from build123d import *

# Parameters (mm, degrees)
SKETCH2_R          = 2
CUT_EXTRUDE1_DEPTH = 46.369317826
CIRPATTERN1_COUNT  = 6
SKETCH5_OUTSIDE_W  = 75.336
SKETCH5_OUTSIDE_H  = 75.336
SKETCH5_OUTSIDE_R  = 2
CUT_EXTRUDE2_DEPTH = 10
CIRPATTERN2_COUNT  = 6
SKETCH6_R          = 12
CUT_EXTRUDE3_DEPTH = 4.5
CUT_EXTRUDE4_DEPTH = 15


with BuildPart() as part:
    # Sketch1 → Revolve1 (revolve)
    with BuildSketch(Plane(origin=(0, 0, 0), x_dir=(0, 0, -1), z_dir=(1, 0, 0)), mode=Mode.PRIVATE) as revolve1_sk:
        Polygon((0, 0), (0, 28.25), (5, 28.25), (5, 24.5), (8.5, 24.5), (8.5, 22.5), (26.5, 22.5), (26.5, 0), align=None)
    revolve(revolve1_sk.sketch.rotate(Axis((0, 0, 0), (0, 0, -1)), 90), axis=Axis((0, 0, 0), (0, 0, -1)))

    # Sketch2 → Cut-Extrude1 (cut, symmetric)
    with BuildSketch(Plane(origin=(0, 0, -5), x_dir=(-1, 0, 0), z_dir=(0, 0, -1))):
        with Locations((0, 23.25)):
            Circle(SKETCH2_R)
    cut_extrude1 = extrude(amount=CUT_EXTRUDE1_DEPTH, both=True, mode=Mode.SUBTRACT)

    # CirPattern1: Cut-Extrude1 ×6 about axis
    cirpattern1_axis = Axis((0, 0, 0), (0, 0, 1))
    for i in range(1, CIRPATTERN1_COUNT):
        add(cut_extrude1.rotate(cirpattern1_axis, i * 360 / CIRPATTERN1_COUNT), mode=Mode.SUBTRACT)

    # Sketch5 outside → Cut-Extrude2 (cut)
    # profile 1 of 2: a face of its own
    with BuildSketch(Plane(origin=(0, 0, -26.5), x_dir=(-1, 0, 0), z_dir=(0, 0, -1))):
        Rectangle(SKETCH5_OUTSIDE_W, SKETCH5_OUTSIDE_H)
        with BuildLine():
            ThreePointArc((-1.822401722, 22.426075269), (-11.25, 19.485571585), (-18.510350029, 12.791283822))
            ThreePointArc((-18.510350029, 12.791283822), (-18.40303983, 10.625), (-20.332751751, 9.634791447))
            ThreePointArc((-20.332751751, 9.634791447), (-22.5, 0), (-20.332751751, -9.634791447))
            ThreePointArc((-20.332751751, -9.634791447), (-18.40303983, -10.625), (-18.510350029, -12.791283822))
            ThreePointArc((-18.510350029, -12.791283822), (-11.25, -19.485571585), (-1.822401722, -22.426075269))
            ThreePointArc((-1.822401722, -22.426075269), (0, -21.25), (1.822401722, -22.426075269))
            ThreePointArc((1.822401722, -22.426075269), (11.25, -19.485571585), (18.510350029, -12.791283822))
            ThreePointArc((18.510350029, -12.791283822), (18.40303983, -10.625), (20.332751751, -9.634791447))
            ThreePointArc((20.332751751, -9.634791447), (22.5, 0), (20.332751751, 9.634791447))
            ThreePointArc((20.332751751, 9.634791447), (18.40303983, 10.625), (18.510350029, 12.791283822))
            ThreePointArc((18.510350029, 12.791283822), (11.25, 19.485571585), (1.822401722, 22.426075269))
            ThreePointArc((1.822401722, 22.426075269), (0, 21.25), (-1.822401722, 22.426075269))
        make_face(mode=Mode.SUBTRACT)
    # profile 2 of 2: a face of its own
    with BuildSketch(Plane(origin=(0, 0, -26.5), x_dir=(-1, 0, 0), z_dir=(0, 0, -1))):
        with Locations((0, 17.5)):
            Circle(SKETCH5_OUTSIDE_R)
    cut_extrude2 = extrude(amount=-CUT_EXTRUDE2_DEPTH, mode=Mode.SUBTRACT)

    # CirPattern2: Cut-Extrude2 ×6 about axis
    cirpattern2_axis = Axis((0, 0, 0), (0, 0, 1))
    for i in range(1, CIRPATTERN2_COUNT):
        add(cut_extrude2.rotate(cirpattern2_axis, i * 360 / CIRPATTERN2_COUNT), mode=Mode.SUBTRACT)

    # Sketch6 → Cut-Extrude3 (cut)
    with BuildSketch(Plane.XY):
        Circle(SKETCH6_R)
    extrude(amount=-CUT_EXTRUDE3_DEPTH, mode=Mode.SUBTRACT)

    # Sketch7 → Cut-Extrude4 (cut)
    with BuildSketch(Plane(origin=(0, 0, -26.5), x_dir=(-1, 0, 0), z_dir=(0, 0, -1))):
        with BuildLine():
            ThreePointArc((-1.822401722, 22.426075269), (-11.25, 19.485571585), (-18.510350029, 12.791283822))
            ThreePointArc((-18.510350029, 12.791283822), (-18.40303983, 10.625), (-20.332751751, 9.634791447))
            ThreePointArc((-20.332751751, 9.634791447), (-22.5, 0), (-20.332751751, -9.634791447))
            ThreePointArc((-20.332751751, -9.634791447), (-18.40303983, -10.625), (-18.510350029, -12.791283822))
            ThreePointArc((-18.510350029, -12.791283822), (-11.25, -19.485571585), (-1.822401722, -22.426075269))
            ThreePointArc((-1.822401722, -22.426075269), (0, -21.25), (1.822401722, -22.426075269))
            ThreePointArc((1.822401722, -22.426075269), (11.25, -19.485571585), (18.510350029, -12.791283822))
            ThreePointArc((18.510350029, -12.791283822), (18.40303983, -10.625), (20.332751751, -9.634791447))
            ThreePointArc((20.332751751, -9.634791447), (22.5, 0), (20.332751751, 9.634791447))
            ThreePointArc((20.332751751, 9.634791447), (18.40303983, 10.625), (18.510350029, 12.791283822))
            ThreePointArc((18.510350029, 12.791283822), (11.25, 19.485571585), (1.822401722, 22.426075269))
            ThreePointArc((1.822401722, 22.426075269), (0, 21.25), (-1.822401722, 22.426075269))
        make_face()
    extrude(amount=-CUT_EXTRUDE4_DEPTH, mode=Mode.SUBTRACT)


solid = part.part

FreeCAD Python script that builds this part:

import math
import FreeCAD as App
import Part
import Sketcher

V = App.Vector
Q = App.Units.Quantity

doc = App.newDocument("Part")
body = doc.addObject("PartDesign::Body", "Body")

# Sketch on YZ plane
sketch1 = doc.addObject("Sketcher::SketchObject", "Sketch")
body.addObject(sketch1)
sketch1.AttachmentSupport = (doc.YZ_Plane, [""])
sketch1.MapMode = "FlatFace"
sketch1.addGeometry([
    Part.LineSegment(V(28.25, 0, 0), V(0, 0, 0)),  # 0
    Part.LineSegment(V(0, 0, 0), V(0, -26.5, 0)),  # 1
    Part.LineSegment(V(0, -26.5, 0), V(22.5, -26.5, 0)),  # 2
    Part.LineSegment(V(22.5, -26.5, 0), V(22.5, -8.5, 0)),  # 3
    Part.LineSegment(V(22.5, -8.5, 0), V(24.5, -8.5, 0)),  # 4
    Part.LineSegment(V(24.5, -8.5, 0), V(24.5, -5, 0)),  # 5
    Part.LineSegment(V(24.5, -5, 0), V(28.25, -5, 0)),  # 6
    Part.LineSegment(V(28.25, -5, 0), V(28.25, 0, 0)),  # 7
], False)
sketch1.addConstraint([
    Sketcher.Constraint("Coincident", 0, 2, 1, 1),
    Sketcher.Constraint("Coincident", 1, 2, 2, 1),
    Sketcher.Constraint("Coincident", 2, 2, 3, 1),
    Sketcher.Constraint("Coincident", 3, 2, 4, 1),
    Sketcher.Constraint("Coincident", 4, 2, 5, 1),
    Sketcher.Constraint("Coincident", 5, 2, 6, 1),
    Sketcher.Constraint("Coincident", 6, 2, 7, 1),
    Sketcher.Constraint("Coincident", 7, 2, 0, 1),
    Sketcher.Constraint("Horizontal", 0),
    Sketcher.Constraint("Vertical", 1),
    Sketcher.Constraint("Horizontal", 2),
    Sketcher.Constraint("Vertical", 3),
    Sketcher.Constraint("Horizontal", 4),
    Sketcher.Constraint("Vertical", 5),
    Sketcher.Constraint("Horizontal", 6),
    Sketcher.Constraint("Vertical", 7),
    Sketcher.Constraint("Coincident", 0, 2, -1, 1),
    Sketcher.Constraint("DistanceX", 4, 1, 4, 2, Q("2 mm")),
    Sketcher.Constraint("DistanceY", 3, 1, 3, 2, Q("18 mm")),
    Sketcher.Constraint("DistanceY", 7, 1, 7, 2, Q("5 mm")),
    Sketcher.Constraint("DistanceX", 2, 1, 2, 2, Q("22.5 mm")),
    Sketcher.Constraint("DistanceY", 1, 2, 1, 1, Q("26.5 mm")),
    Sketcher.Constraint("DistanceX", 0, 2, 0, 1, Q("28.25 mm")),
])
revolution = doc.addObject("PartDesign::Revolution", "Revolution")
body.addObject(revolution)
revolution.Profile = sketch1
revolution.ReferenceAxis = (sketch1, ["V_Axis"])
revolution.Angle = 360

# Sketch on XY plane
sketch2 = doc.addObject("Sketcher::SketchObject", "Sketch001")
body.addObject(sketch2)
sketch2.AttachmentSupport = (doc.XY_Plane, [""])
sketch2.MapMode = "FlatFace"
sketch2.AttachmentOffset = App.Placement(V(0, 0, -5), App.Rotation())
sketch2.addGeometry(Part.Circle(V(0, 23.25, 0), V(0, 0, 1), 2), False)
sketch2.addConstraint([
    Sketcher.Constraint("PointOnObject", 0, 3, -2),
    Sketcher.Constraint("Diameter", 0, Q("4 mm")),
    Sketcher.Constraint("DistanceY", -1, 1, 0, 3, Q("23.25 mm")),
])
pocket1 = doc.addObject("PartDesign::Pocket", "Pocket")
body.addObject(pocket1)
pocket1.Profile = sketch2
pocket1.Length = 92.738636
pocket1.Midplane = True
doc.recompute()

polarpattern = doc.addObject("PartDesign::PolarPattern", "PolarPattern")
body.addObject(polarpattern)
polarpattern.Originals = [pocket1]
polarpattern.Axis = (doc.Z_Axis, [""])
polarpattern.Angle = 360
polarpattern.Occurrences = 6
body.Tip = polarpattern

# Sketch on XY plane
sketch3 = doc.addObject("Sketcher::SketchObject", "Sketch002")
body.addObject(sketch3)
sketch3.AttachmentSupport = (doc.XY_Plane, [""])
sketch3.MapMode = "FlatFace"
sketch3.AttachmentOffset = App.Placement(V(0, 0, -26.5), App.Rotation())
sketch3.addGeometry([
    Part.LineSegment(V(37.668, 37.668, 0), V(37.668, -37.668, 0)),  # 0
    Part.LineSegment(V(37.668, -37.668, 0), V(-37.668, -37.668, 0)),  # 1
    Part.LineSegment(V(-37.668, -37.668, 0), V(-37.668, 37.668, 0)),  # 2
    Part.LineSegment(V(-37.668, 37.668, 0), V(37.668, 37.668, 0)),  # 3
    Part.ArcOfCircle(Part.Circle(V(0, 0, 0), V(0, 0, 1), 22.5), math.radians(34.645797), math.radians(85.354203)),  # 4
    Part.ArcOfCircle(Part.Circle(V(0, 23.25, 0), V(0, 0, 1), 2), math.radians(-155.671833), math.radians(-24.328167)),  # 5
    Part.ArcOfCircle(Part.Circle(V(0, 0, 0), V(0, 0, 1), 22.5), math.radians(94.645797), math.radians(145.354203)),  # 6
    Part.ArcOfCircle(Part.Circle(V(-20.135091, 11.625, 0), V(0, 0, 1), 2), math.radians(-95.671833), math.radians(35.671833)),  # 7
    Part.ArcOfCircle(Part.Circle(V(0, 0, 0), V(0, 0, 1), 22.5), math.radians(154.645797), math.radians(205.354203)),  # 8
    Part.ArcOfCircle(Part.Circle(V(-20.135091, -11.625, 0), V(0, 0, 1), 2), math.radians(-35.671833), math.radians(95.671833)),  # 9
    Part.ArcOfCircle(Part.Circle(V(0, 0, 0), V(0, 0, 1), 22.5), math.radians(-145.354203), math.radians(-94.645797)),  # 10
    Part.ArcOfCircle(Part.Circle(V(0, -23.25, 0), V(0, 0, 1), 2), math.radians(24.328167), math.radians(155.671833)),  # 11
    Part.ArcOfCircle(Part.Circle(V(0, 0, 0), V(0, 0, 1), 22.5), math.radians(-85.354203), math.radians(-34.645797)),  # 12
    Part.ArcOfCircle(Part.Circle(V(20.135091, -11.625, 0), V(0, 0, 1), 2), math.radians(84.328167), math.radians(215.671833)),  # 13
    Part.ArcOfCircle(Part.Circle(V(0, 0, 0), V(0, 0, 1), 22.5), math.radians(-25.354203), math.radians(25.354203)),  # 14
    Part.ArcOfCircle(Part.Circle(V(20.135091, 11.625, 0), V(0, 0, 1), 2), math.radians(144.328167), math.radians(275.671833)),  # 15
    Part.Circle(V(0, 17.5, 0), V(0, 0, 1), 2),  # 16
], False)
sketch3.addConstraint([
    Sketcher.Constraint("Coincident", 0, 2, 1, 1),
    Sketcher.Constraint("Coincident", 1, 2, 2, 1),
    Sketcher.Constraint("Coincident", 2, 2, 3, 1),
    Sketcher.Constraint("Coincident", 3, 2, 0, 1),
    Sketcher.Constraint("Coincident", 4, 2, 5, 2),
    Sketcher.Constraint("Coincident", 5, 1, 6, 1),
    Sketcher.Constraint("Coincident", 6, 2, 7, 2),
    Sketcher.Constraint("Coincident", 7, 1, 8, 1),
    Sketcher.Constraint("Coincident", 8, 2, 9, 2),
    Sketcher.Constraint("Coincident", 9, 1, 10, 1),
    Sketcher.Constraint("Coincident", 10, 2, 11, 2),
    Sketcher.Constraint("Coincident", 11, 1, 12, 1),
    Sketcher.Constraint("Coincident", 12, 2, 13, 2),
    Sketcher.Constraint("Coincident", 13, 1, 14, 1),
    Sketcher.Constraint("Coincident", 14, 2, 15, 2),
    Sketcher.Constraint("Coincident", 15, 1, 4, 1),
    Sketcher.Constraint("Vertical", 0),
    Sketcher.Constraint("Horizontal", 1),
    Sketcher.Constraint("Vertical", 2),
    Sketcher.Constraint("Horizontal", 3),
    Sketcher.Constraint("Coincident", 4, 3, -1, 1),
    Sketcher.Constraint("Coincident", 6, 3, -1, 1),
    Sketcher.Constraint("Coincident", 8, 3, -1, 1),
    Sketcher.Constraint("Coincident", 10, 3, -1, 1),
    Sketcher.Constraint("Coincident", 12, 3, -1, 1),
    Sketcher.Constraint("Coincident", 14, 3, -1, 1),
    Sketcher.Constraint("Equal", 4, 6),
    Sketcher.Constraint("Equal", 5, 7),
    Sketcher.Constraint("Equal", 6, 8),
    Sketcher.Constraint("Equal", 7, 9),
    Sketcher.Constraint("Equal", 8, 10),
    Sketcher.Constraint("Equal", 9, 11),
    Sketcher.Constraint("Equal", 10, 12),
    Sketcher.Constraint("Equal", 11, 13),
    Sketcher.Constraint("Equal", 12, 14),
    Sketcher.Constraint("Equal", 13, 15),
    Sketcher.Constraint("Equal", 15, 16),
    Sketcher.Constraint("Symmetric", 5, 3, 11, 3, -1, 1),
    Sketcher.Constraint("Symmetric", 7, 3, 13, 3, -1, 1),
    Sketcher.Constraint("Symmetric", 9, 3, 15, 3, -1, 1),
    Sketcher.Constraint("Symmetric", 0, 2, 2, 2, -1, 1),
    Sketcher.Constraint("Symmetric", 9, 3, 13, 3, -2),
    Sketcher.Constraint("PointOnObject", 5, 3, -2),
    Sketcher.Constraint("PointOnObject", 16, 3, -2),
    Sketcher.Constraint("Equal", 3, 0),
    Sketcher.Constraint("Diameter", 16, Q("4 mm")),
    Sketcher.Constraint("Radius", 4, Q("22.5 mm")),
    Sketcher.Constraint("DistanceY", -1, 1, 16, 3, Q("17.5 mm")),
    Sketcher.Constraint("DistanceX", 1, 2, 1, 1, Q("75.336 mm")),
    Sketcher.Constraint("DistanceY", -1, 1, 5, 3, Q("23.25 mm")),
    Sketcher.Constraint("DistanceY", 9, 3, 7, 3, Q("23.25 mm")),
    Sketcher.Constraint("DistanceX", 7, 1, 6, 2, Q("1.822402 mm")),
])
pocket2 = doc.addObject("PartDesign::Pocket", "Pocket001")
body.addObject(pocket2)
pocket2.Profile = sketch3
pocket2.Length = 10
pocket2.Reversed = True
doc.recompute()

polarpattern2 = doc.addObject("PartDesign::PolarPattern", "PolarPattern001")
body.addObject(polarpattern2)
polarpattern2.Originals = [pocket2]
polarpattern2.Axis = (doc.Z_Axis, [""])
polarpattern2.Angle = 360
polarpattern2.Occurrences = 6
body.Tip = polarpattern2

# Sketch on XY plane
sketch4 = doc.addObject("Sketcher::SketchObject", "Sketch003")
body.addObject(sketch4)
sketch4.AttachmentSupport = (doc.XY_Plane, [""])
sketch4.MapMode = "FlatFace"
sketch4.addGeometry(Part.Circle(V(0, 0, 0), V(0, 0, 1), 12), False)
sketch4.addConstraint([
    Sketcher.Constraint("Coincident", 0, 3, -1, 1),
    Sketcher.Constraint("Diameter", 0, Q("24 mm")),
])
pocket3 = doc.addObject("PartDesign::Pocket", "Pocket002")
body.addObject(pocket3)
pocket3.Profile = sketch4
pocket3.Length = 4.5

# Sketch on XY plane
sketch5 = doc.addObject("Sketcher::SketchObject", "Sketch004")
body.addObject(sketch5)
sketch5.AttachmentSupport = (doc.XY_Plane, [""])
sketch5.MapMode = "FlatFace"
sketch5.AttachmentOffset = App.Placement(V(0, 0, -26.5), App.Rotation())
sketch5.addGeometry([
    Part.ArcOfCircle(Part.Circle(V(0, 0, 0), V(0, 0, 1), 22.5), math.radians(34.645797), math.radians(85.354203)),  # 0
    Part.ArcOfCircle(Part.Circle(V(20.135091, 11.625, 0), V(0, 0, 1), 2), math.radians(144.328167), math.radians(275.671833)),  # 1
    Part.ArcOfCircle(Part.Circle(V(0, 0, 0), V(0, 0, 1), 22.5), math.radians(-25.354203), math.radians(25.354203)),  # 2
    Part.ArcOfCircle(Part.Circle(V(20.135091, -11.625, 0), V(0, 0, 1), 2), math.radians(84.328167), math.radians(215.671833)),  # 3
    Part.ArcOfCircle(Part.Circle(V(0, 0, 0), V(0, 0, 1), 22.5), math.radians(-85.354203), math.radians(-34.645797)),  # 4
    Part.ArcOfCircle(Part.Circle(V(0, -23.25, 0), V(0, 0, 1), 2), math.radians(24.328167), math.radians(155.671833)),  # 5
    Part.ArcOfCircle(Part.Circle(V(0, 0, 0), V(0, 0, 1), 22.5), math.radians(-145.354203), math.radians(-94.645797)),  # 6
    Part.ArcOfCircle(Part.Circle(V(-20.135091, -11.625, 0), V(0, 0, 1), 2), math.radians(-35.671833), math.radians(95.671833)),  # 7
    Part.ArcOfCircle(Part.Circle(V(0, 0, 0), V(0, 0, 1), 22.5), math.radians(154.645797), math.radians(205.354203)),  # 8
    Part.ArcOfCircle(Part.Circle(V(-20.135091, 11.625, 0), V(0, 0, 1), 2), math.radians(-95.671833), math.radians(35.671833)),  # 9
    Part.ArcOfCircle(Part.Circle(V(0, 0, 0), V(0, 0, 1), 22.5), math.radians(94.645797), math.radians(145.354203)),  # 10
    Part.ArcOfCircle(Part.Circle(V(0, 23.25, 0), V(0, 0, 1), 2), math.radians(-155.671833), math.radians(-24.328167)),  # 11
], False)
sketch5.addConstraint([
    Sketcher.Constraint("Coincident", 0, 1, 1, 1),
    Sketcher.Constraint("Coincident", 1, 2, 2, 2),
    Sketcher.Constraint("Coincident", 2, 1, 3, 1),
    Sketcher.Constraint("Coincident", 3, 2, 4, 2),
    Sketcher.Constraint("Coincident", 4, 1, 5, 1),
    Sketcher.Constraint("Coincident", 5, 2, 6, 2),
    Sketcher.Constraint("Coincident", 6, 1, 7, 1),
    Sketcher.Constraint("Coincident", 7, 2, 8, 2),
    Sketcher.Constraint("Coincident", 8, 1, 9, 1),
    Sketcher.Constraint("Coincident", 9, 2, 10, 2),
    Sketcher.Constraint("Coincident", 10, 1, 11, 1),
    Sketcher.Constraint("Coincident", 11, 2, 0, 2),
    Sketcher.Constraint("Coincident", 0, 3, -1, 1),
    Sketcher.Constraint("Coincident", 2, 3, -1, 1),
    Sketcher.Constraint("Coincident", 4, 3, -1, 1),
    Sketcher.Constraint("Coincident", 6, 3, -1, 1),
    Sketcher.Constraint("Coincident", 8, 3, -1, 1),
    Sketcher.Constraint("Coincident", 10, 3, -1, 1),
    Sketcher.Constraint("Equal", 0, 2),
    Sketcher.Constraint("Equal", 1, 3),
    Sketcher.Constraint("Equal", 2, 4),
    Sketcher.Constraint("Equal", 3, 5),
    Sketcher.Constraint("Equal", 4, 6),
    Sketcher.Constraint("Equal", 5, 7),
    Sketcher.Constraint("Equal", 6, 8),
    Sketcher.Constraint("Equal", 7, 9),
    Sketcher.Constraint("Equal", 8, 10),
    Sketcher.Constraint("Equal", 9, 11),
    Sketcher.Constraint("Symmetric", 1, 3, 7, 3, -1, 1),
    Sketcher.Constraint("Symmetric", 3, 3, 9, 3, -1, 1),
    Sketcher.Constraint("Symmetric", 5, 3, 11, 3, -1, 1),
    Sketcher.Constraint("Symmetric", 3, 3, 7, 3, -2),
    Sketcher.Constraint("PointOnObject", 5, 3, -2),
    Sketcher.Constraint("Radius", 1, Q("2 mm")),
    Sketcher.Constraint("Radius", 0, Q("22.5 mm")),
    Sketcher.Constraint("DistanceY", 5, 3, -1, 1, Q("23.25 mm")),
    Sketcher.Constraint("DistanceY", 3, 3, 1, 3, Q("23.25 mm")),
    Sketcher.Constraint("DistanceX", 0, 1, 1, 2, Q("1.822402 mm")),
])
pocket4 = doc.addObject("PartDesign::Pocket", "Pocket003")
body.addObject(pocket4)
pocket4.Profile = sketch5
pocket4.Length = 15
pocket4.Reversed = True

doc.recompute()
